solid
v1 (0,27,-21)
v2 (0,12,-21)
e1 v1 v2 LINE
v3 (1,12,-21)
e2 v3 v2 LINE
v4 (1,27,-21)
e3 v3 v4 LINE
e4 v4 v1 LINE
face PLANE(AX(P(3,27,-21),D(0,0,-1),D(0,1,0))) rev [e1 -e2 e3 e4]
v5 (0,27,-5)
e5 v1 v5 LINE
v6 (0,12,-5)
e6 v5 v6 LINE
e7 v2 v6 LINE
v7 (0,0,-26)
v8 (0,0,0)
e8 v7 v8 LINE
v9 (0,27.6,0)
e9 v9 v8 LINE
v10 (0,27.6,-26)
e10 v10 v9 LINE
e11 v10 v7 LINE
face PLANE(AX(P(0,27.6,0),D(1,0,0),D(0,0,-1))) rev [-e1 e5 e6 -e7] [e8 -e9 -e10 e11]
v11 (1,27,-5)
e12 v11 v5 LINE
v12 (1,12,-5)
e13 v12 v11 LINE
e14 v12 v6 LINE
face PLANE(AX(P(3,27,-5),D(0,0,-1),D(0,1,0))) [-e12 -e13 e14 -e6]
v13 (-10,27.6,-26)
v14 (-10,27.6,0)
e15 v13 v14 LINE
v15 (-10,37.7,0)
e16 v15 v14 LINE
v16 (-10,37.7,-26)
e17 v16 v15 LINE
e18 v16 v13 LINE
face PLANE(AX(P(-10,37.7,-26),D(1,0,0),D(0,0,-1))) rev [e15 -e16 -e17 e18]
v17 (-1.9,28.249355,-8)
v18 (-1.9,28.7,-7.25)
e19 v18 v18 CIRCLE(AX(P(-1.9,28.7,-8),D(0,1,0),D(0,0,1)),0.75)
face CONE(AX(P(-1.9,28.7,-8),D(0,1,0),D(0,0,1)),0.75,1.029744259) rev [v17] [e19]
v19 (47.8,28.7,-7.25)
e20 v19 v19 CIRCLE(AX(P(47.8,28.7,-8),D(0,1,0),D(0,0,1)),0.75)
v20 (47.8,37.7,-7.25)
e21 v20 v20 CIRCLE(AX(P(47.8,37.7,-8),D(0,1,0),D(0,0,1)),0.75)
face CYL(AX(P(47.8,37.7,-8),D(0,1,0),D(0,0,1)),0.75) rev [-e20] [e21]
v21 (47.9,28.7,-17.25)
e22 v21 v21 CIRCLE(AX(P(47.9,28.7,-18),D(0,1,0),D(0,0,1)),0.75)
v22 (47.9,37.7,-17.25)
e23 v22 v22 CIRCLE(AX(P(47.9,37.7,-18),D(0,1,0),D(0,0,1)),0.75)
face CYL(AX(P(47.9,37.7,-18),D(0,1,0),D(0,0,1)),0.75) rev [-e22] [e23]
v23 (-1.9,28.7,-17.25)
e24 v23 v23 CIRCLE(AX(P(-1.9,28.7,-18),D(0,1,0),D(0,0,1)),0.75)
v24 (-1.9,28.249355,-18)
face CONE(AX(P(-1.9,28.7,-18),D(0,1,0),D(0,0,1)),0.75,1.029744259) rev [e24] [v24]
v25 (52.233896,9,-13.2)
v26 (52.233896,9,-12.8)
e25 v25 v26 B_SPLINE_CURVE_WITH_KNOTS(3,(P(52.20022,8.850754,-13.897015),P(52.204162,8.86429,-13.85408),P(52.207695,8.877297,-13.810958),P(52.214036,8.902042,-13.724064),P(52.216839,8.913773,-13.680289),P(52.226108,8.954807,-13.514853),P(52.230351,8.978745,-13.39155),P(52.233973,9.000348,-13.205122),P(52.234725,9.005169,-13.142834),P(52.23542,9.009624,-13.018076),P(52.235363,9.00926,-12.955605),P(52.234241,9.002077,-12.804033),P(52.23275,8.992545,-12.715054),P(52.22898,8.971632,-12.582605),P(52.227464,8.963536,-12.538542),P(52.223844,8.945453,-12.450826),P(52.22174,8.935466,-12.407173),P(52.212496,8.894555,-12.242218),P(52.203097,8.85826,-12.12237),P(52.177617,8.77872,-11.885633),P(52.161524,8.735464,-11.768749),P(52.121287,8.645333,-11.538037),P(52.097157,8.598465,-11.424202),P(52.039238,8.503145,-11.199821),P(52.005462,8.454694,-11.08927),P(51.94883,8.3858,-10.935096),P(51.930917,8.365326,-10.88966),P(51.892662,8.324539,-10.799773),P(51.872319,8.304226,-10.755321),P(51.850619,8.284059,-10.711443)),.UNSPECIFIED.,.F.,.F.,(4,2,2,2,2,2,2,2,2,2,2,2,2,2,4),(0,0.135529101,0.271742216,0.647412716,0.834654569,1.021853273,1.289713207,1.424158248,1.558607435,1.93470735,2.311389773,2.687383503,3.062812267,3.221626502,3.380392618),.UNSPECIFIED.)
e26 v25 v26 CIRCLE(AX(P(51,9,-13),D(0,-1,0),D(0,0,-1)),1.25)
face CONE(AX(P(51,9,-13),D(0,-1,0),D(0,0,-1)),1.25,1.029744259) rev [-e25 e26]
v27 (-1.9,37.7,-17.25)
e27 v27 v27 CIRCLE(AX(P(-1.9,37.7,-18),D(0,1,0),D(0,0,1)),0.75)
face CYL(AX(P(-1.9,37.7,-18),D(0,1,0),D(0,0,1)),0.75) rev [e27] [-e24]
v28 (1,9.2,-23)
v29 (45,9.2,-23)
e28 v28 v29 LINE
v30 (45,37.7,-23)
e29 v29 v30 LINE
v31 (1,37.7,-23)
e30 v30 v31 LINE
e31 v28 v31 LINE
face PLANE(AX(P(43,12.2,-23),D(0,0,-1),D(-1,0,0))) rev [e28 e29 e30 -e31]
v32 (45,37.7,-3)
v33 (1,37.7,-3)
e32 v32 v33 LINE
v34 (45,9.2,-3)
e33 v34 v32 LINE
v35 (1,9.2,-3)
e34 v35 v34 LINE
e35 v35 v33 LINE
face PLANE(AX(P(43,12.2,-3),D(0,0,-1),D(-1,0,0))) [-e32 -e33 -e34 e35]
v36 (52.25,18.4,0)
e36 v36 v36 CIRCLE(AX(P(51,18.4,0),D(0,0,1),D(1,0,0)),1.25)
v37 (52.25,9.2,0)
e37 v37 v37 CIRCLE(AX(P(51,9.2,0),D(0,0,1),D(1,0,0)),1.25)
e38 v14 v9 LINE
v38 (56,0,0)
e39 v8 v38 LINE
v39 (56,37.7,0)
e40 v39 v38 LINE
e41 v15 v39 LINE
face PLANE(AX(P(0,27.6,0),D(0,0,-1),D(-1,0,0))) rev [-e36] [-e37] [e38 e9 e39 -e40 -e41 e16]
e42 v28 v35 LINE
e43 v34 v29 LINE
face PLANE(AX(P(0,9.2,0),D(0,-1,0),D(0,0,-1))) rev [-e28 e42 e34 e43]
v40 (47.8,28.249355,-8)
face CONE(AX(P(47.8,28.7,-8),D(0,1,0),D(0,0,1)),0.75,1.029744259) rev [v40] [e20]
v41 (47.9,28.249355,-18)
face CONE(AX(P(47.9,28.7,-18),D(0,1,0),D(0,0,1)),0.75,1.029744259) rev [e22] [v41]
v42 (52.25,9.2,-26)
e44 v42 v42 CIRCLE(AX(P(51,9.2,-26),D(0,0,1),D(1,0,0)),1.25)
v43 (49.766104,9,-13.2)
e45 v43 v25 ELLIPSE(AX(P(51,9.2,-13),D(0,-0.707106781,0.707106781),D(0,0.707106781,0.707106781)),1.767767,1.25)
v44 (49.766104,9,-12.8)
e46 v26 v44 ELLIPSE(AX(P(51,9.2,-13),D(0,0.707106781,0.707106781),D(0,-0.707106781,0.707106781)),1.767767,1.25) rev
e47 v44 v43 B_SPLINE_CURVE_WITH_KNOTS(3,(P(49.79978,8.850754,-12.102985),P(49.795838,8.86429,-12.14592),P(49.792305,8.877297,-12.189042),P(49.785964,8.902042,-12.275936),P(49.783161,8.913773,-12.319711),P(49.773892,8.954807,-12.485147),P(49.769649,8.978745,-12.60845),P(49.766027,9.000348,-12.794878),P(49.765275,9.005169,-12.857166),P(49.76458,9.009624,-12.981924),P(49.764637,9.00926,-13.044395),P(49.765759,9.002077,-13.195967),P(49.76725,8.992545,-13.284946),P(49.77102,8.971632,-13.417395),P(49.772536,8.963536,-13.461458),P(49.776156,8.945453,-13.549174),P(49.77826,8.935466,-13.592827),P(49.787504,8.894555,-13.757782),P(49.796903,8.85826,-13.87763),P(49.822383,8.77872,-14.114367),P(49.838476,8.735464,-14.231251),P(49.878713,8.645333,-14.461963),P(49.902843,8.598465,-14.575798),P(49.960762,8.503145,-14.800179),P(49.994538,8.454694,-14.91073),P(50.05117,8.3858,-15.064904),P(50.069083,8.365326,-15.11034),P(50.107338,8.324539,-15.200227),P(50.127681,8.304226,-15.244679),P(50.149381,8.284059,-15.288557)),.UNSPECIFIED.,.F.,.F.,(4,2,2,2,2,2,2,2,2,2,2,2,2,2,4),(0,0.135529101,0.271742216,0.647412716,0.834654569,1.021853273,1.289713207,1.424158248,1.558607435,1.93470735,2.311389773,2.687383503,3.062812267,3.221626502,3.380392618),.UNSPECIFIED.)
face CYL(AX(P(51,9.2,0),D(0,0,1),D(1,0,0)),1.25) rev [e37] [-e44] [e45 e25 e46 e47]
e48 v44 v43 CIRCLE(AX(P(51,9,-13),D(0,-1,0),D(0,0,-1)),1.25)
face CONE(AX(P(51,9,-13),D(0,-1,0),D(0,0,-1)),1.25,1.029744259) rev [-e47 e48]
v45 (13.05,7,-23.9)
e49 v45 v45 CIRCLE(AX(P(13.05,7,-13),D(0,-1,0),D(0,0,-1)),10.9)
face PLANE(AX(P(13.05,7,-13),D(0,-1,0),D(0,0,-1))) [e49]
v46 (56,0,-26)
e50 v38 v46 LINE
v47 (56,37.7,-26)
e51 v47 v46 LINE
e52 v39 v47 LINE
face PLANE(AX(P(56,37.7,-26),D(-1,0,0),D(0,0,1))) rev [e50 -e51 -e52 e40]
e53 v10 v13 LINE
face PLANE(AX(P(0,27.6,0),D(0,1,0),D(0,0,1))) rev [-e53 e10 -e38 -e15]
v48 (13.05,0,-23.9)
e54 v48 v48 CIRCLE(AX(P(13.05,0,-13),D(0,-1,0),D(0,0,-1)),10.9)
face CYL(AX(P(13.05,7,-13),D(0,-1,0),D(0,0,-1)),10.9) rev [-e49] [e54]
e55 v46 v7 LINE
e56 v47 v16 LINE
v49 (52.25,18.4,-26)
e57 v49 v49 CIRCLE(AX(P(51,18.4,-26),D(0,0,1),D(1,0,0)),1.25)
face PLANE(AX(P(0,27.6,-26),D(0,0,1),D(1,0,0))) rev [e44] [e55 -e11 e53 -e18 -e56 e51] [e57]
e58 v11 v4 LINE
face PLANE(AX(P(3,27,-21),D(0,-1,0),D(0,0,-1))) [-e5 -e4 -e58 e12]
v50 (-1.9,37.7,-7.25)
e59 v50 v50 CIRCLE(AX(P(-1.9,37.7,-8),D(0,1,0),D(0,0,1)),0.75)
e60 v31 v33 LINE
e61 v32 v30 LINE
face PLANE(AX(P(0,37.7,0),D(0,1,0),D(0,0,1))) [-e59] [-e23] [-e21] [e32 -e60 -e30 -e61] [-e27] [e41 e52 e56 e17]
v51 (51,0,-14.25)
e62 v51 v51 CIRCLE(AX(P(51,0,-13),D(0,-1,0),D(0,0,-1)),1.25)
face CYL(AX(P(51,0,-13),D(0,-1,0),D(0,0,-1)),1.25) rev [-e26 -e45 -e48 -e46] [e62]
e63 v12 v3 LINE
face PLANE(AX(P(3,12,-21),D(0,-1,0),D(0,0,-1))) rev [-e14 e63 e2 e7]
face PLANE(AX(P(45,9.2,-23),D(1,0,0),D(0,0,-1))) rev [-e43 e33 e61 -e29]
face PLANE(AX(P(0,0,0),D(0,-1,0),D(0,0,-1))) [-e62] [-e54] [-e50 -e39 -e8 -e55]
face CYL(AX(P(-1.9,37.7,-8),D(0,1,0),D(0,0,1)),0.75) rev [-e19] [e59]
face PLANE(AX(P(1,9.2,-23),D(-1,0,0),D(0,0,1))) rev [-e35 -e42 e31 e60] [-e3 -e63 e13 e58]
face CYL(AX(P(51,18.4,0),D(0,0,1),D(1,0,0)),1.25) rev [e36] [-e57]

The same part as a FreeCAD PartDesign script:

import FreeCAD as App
import Part
import Sketcher
Q = App.Units.Quantity

doc = App.newDocument("Part")
body = doc.addObject("PartDesign::Body", "Body")

# Sketch on XZ plane
sketch1 = body.newObject("Sketcher::SketchObject", "Sketch")
sketch1.AttachmentSupport = (doc.getObject("XZ_Plane"), [""])
sketch1.MapMode = "FlatFace"
sketch1.addGeometry([
    Part.LineSegment(App.Vector(0, -26, 0), App.Vector(0, 0, 0)),
    Part.LineSegment(App.Vector(0, 0, 0), App.Vector(46, 0, 0)),
    Part.LineSegment(App.Vector(46, 0, 0), App.Vector(46, -26, 0)),
    Part.LineSegment(App.Vector(46, -26, 0), App.Vector(0, -26, 0)),
], False)
sketch1.addConstraint([
    Sketcher.Constraint("Coincident", 0, 2, 1, 1),
    Sketcher.Constraint("Coincident", 1, 2, 2, 1),
    Sketcher.Constraint("Coincident", 2, 2, 3, 1),
    Sketcher.Constraint("Coincident", 3, 2, 0, 1),
    Sketcher.Constraint("Vertical", 0),
    Sketcher.Constraint("Horizontal", 1),
    Sketcher.Constraint("Vertical", 2),
    Sketcher.Constraint("Horizontal", 3),
    Sketcher.Constraint("Coincident", 0, 2, -1, 1),
    Sketcher.Constraint("DistanceX", 1, 1, 1, 2, Q("46 mm")),
    Sketcher.Constraint("DistanceY", 0, 1, 0, 2, Q("26 mm")),
])
pad1 = body.newObject("PartDesign::Pad", "Pad")
pad1.Profile = sketch1
pad1.Length = 27.6
pad1.Reversed = True

# Sketch on XZ plane
sketch2 = body.newObject("Sketcher::SketchObject", "Sketch001")
sketch2.AttachmentSupport = (doc.getObject("XZ_Plane"), [""])
sketch2.MapMode = "FlatFace"
sketch2.AttachmentOffset = App.Placement(App.Vector(0, 0, -27.6), App.Rotation())
sketch2.addGeometry([
    Part.LineSegment(App.Vector(-10, -26, 0), App.Vector(-10, 0, 0)),
    Part.LineSegment(App.Vector(-10, 0, 0), App.Vector(56, 0, 0)),
    Part.LineSegment(App.Vector(56, 0, 0), App.Vector(56, -26, 0)),
    Part.LineSegment(App.Vector(56, -26, 0), App.Vector(-10, -26, 0)),
], False)
sketch2.addConstraint([
    Sketcher.Constraint("Coincident", 0, 2, 1, 1),
    Sketcher.Constraint("Coincident", 1, 2, 2, 1),
    Sketcher.Constraint("Coincident", 2, 2, 3, 1),
    Sketcher.Constraint("Coincident", 3, 2, 0, 1),
    Sketcher.Constraint("Vertical", 0),
    Sketcher.Constraint("Horizontal", 1),
    Sketcher.Constraint("Vertical", 2),
    Sketcher.Constraint("Horizontal", 3),
    Sketcher.Constraint("PointOnObject", 0, 2, -1),
    Sketcher.Constraint("DistanceX", 1, 1, 1, 2, Q("66 mm")),
    Sketcher.Constraint("DistanceY", 0, 1, 0, 2, Q("26 mm")),
    Sketcher.Constraint("DistanceX", 0, 2, -1, 1, Q("10 mm")),
])
pad2 = body.newObject("PartDesign::Pad", "Pad001")
pad2.Profile = sketch2
pad2.Length = 10.1
pad2.Reversed = True

# Sketch on XZ plane
sketch3 = body.newObject("Sketcher::SketchObject", "Sketch002")
sketch3.AttachmentSupport = (doc.getObject("XZ_Plane"), [""])
sketch3.MapMode = "FlatFace"
sketch3.AttachmentOffset = App.Placement(App.Vector(0, 0, -37.7), App.Rotation())
sketch3.addGeometry([
    Part.LineSegment(App.Vector(3, -23, 0), App.Vector(3, -3, 0)),
    Part.LineSegment(App.Vector(3, -3, 0), App.Vector(43, -3, 0)),
    Part.LineSegment(App.Vector(43, -3, 0), App.Vector(43, -23, 0)),
    Part.LineSegment(App.Vector(43, -23, 0), App.Vector(3, -23, 0)),
], False)
sketch3.addConstraint([
    Sketcher.Constraint("Coincident", 0, 2, 1, 1),
    Sketcher.Constraint("Coincident", 1, 2, 2, 1),
    Sketcher.Constraint("Coincident", 2, 2, 3, 1),
    Sketcher.Constraint("Coincident", 3, 2, 0, 1),
    Sketcher.Constraint("Vertical", 0),
    Sketcher.Constraint("Horizontal", 1),
    Sketcher.Constraint("Vertical", 2),
    Sketcher.Constraint("Horizontal", 3),
    Sketcher.Constraint("DistanceX", 1, 1, 1, 2, Q("40 mm")),
    Sketcher.Constraint("DistanceY", 0, 1, 0, 2, Q("20 mm")),
    Sketcher.Constraint("DistanceX", -1, 1, 0, 2, Q("3 mm")),
    Sketcher.Constraint("DistanceY", 0, 2, -1, 1, Q("3 mm")),
])
pocket1 = body.newObject("PartDesign::Pocket", "Pocket")
pocket1.Profile = sketch3
pocket1.Length = 25.5
pocket1.Reversed = True

# Sketch on XZ plane
sketch4 = body.newObject("Sketcher::SketchObject", "Sketch003")
sketch4.AttachmentSupport = (doc.getObject("XZ_Plane"), [""])
sketch4.MapMode = "FlatFace"
sketch4.AttachmentOffset = App.Placement(App.Vector(0, 0, -37.7), App.Rotation())
sketch4.addGeometry([
    Part.Circle(App.Vector(-1.9, -18, 0), App.Vector(0, 0, 1), 0.75),
    Part.Circle(App.Vector(-1.9, -8, 0), App.Vector(0, 0, 1), 0.75),
    Part.Circle(App.Vector(47.8, -8, 0), App.Vector(0, 0, 1), 0.75),
    Part.Circle(App.Vector(47.9, -18, 0), App.Vector(0, 0, 1), 0.75),
], False)
sketch4.addConstraint([
    Sketcher.Constraint("Equal", 0, 1),
    Sketcher.Constraint("Equal", 1, 2),
    Sketcher.Constraint("Equal", 2, 3),
    Sketcher.Constraint("Horizontal", 1, 3, 2, 3),
    Sketcher.Constraint("Horizontal", 0, 3, 3, 3),
    Sketcher.Constraint("Vertical", 0, 3, 1, 3),
    Sketcher.Constraint("Diameter", 0, Q("1.5 mm")),
    Sketcher.Constraint("DistanceY", 0, 3, -1, 1, Q("18 mm")),
    Sketcher.Constraint("DistanceY", 1, 3, -1, 1, Q("8 mm")),
    Sketcher.Constraint("DistanceX", 0, 3, -1, 1, Q("1.9 mm")),
    Sketcher.Constraint("DistanceX", -1, 1, 2, 3, Q("47.8 mm")),
    Sketcher.Constraint("DistanceX", -1, 1, 3, 3, Q("47.9 mm")),
])
doc.recompute()
hole = body.newObject("PartDesign::Hole", "Hole")
hole.Profile = sketch4
hole.ThreadType = "None"
hole.Diameter = 1.5
hole.DepthType = "Dimension"
hole.Depth = 9
hole.DrillPoint = "Angled"
hole.DrillPointAngle = 118
hole.Reversed = True

# Sketch on XZ plane
sketch5 = body.newObject("Sketcher::SketchObject", "Sketch004")
sketch5.AttachmentSupport = (doc.getObject("XZ_Plane"), [""])
sketch5.MapMode = "FlatFace"
sketch5.AttachmentOffset = App.Placement(App.Vector(0, 0, -12.2), App.Rotation())
sketch5.addGeometry([
    Part.LineSegment(App.Vector(3, -23, 0), App.Vector(3, -3, 0)),
    Part.LineSegment(App.Vector(3, -3, 0), App.Vector(43, -3, 0)),
    Part.LineSegment(App.Vector(43, -3, 0), App.Vector(43, -23, 0)),
    Part.LineSegment(App.Vector(43, -23, 0), App.Vector(3, -23, 0)),
], False)
sketch5.addConstraint([
    Sketcher.Constraint("Coincident", 0, 2, 1, 1),
    Sketcher.Constraint("Coincident", 1, 2, 2, 1),
    Sketcher.Constraint("Coincident", 2, 2, 3, 1),
    Sketcher.Constraint("Coincident", 3, 2, 0, 1),
    Sketcher.Constraint("Vertical", 0),
    Sketcher.Constraint("Horizontal", 1),
    Sketcher.Constraint("Vertical", 2),
    Sketcher.Constraint("Horizontal", 3),
    Sketcher.Constraint("DistanceX", 1, 1, 1, 2, Q("40 mm")),
    Sketcher.Constraint("DistanceY", 0, 1, 0, 2, Q("20 mm")),
    Sketcher.Constraint("DistanceX", -1, 1, 0, 2, Q("3 mm")),
    Sketcher.Constraint("DistanceY", 0, 2, -1, 1, Q("3 mm")),
])
pocket2 = body.newObject("PartDesign::Pocket", "Pocket001")
pocket2.Profile = sketch5
pocket2.Length = 3
pocket2.Reversed = True

# Sketch on YZ plane
sketch6 = body.newObject("Sketcher::SketchObject", "Sketch005")
sketch6.AttachmentSupport = (doc.getObject("YZ_Plane"), [""])
sketch6.MapMode = "FlatFace"
sketch6.addGeometry([
    Part.LineSegment(App.Vector(27, -21, 0), App.Vector(12, -21, 0)),
    Part.LineSegment(App.Vector(12, -21, 0), App.Vector(12, -5, 0)),
    Part.LineSegment(App.Vector(12, -5, 0), App.Vector(27, -5, 0)),
    Part.LineSegment(App.Vector(27, -5, 0), App.Vector(27, -21, 0)),
], False)
sketch6.addConstraint([
    Sketcher.Constraint("Coincident", 0, 2, 1, 1),
    Sketcher.Constraint("Coincident", 1, 2, 2, 1),
    Sketcher.Constraint("Coincident", 2, 2, 3, 1),
    Sketcher.Constraint("Coincident", 3, 2, 0, 1),
    Sketcher.Constraint("Horizontal", 0),
    Sketcher.Constraint("Vertical", 1),
    Sketcher.Constraint("Horizontal", 2),
    Sketcher.Constraint("Vertical", 3),
    Sketcher.Constraint("DistanceX", 0, 2, 0, 1, Q("15 mm")),
    Sketcher.Constraint("DistanceY", 1, 1, 1, 2, Q("16 mm")),
    Sketcher.Constraint("DistanceX", -1, 1, 0, 2, Q("12 mm")),
    Sketcher.Constraint("DistanceY", 0, 2, -1, 1, Q("21 mm")),
])
pocket3 = body.newObject("PartDesign::Pocket", "Pocket002")
pocket3.Profile = sketch6
pocket3.Length = 3
pocket3.Reversed = True

# Sketch on XZ plane
sketch7 = body.newObject("Sketcher::SketchObject", "Sketch006")
sketch7.AttachmentSupport = (doc.getObject("XZ_Plane"), [""])
sketch7.MapMode = "FlatFace"
sketch7.addGeometry(Part.Circle(App.Vector(13.05, -13, 0), App.Vector(0, 0, 1), 10.9), False)
sketch7.addConstraint([
    Sketcher.Constraint("Diameter", 0, Q("21.8 mm")),
    Sketcher.Constraint("DistanceY", 0, 3, -1, 1, Q("13 mm")),
    Sketcher.Constraint("DistanceX", -1, 1, 0, 3, Q("13.05 mm")),
])
pocket4 = body.newObject("PartDesign::Pocket", "Pocket003")
pocket4.Profile = sketch7
pocket4.Length = 7

# Sketch on XZ plane
sketch8 = body.newObject("Sketcher::SketchObject", "Sketch007")
sketch8.AttachmentSupport = (doc.getObject("XZ_Plane"), [""])
sketch8.MapMode = "FlatFace"
sketch8.AttachmentOffset = App.Placement(App.Vector(0, 0, -37.7), App.Rotation())
sketch8.addGeometry([
    Part.LineSegment(App.Vector(1, -23, 0), App.Vector(1, -3, 0)),
    Part.LineSegment(App.Vector(1, -3, 0), App.Vector(45, -3, 0)),
    Part.LineSegment(App.Vector(45, -3, 0), App.Vector(45, -23, 0)),
    Part.LineSegment(App.Vector(45, -23, 0), App.Vector(1, -23, 0)),
], False)
sketch8.addConstraint([
    Sketcher.Constraint("Coincident", 0, 2, 1, 1),
    Sketcher.Constraint("Coincident", 1, 2, 2, 1),
    Sketcher.Constraint("Coincident", 2, 2, 3, 1),
    Sketcher.Constraint("Coincident", 3, 2, 0, 1),
    Sketcher.Constraint("Vertical", 0),
    Sketcher.Constraint("Horizontal", 1),
    Sketcher.Constraint("Vertical", 2),
    Sketcher.Constraint("Horizontal", 3),
    Sketcher.Constraint("DistanceX", 1, 1, 1, 2, Q("44 mm")),
    Sketcher.Constraint("DistanceY", 0, 1, 0, 2, Q("20 mm")),
    Sketcher.Constraint("DistanceX", -1, 1, 0, 2, Q("1 mm")),
    Sketcher.Constraint("DistanceY", 0, 2, -1, 1, Q("3 mm")),
])
pocket5 = body.newObject("PartDesign::Pocket", "Pocket004")
pocket5.Profile = sketch8
pocket5.Length = 28.5
pocket5.Reversed = True

# Sketch on YZ plane
sketch9 = body.newObject("Sketcher::SketchObject", "Sketch008")
sketch9.AttachmentSupport = (doc.getObject("YZ_Plane"), [""])
sketch9.MapMode = "FlatFace"
sketch9.AttachmentOffset = App.Placement(App.Vector(0, 0, 46), App.Rotation())
sketch9.addGeometry([
    Part.LineSegment(App.Vector(27.6, 0, 0), App.Vector(0, 0, 0)),
    Part.LineSegment(App.Vector(0, 0, 0), App.Vector(0, -26, 0)),
    Part.LineSegment(App.Vector(0, -26, 0), App.Vector(27.6, -26, 0)),
    Part.LineSegment(App.Vector(27.6, -26, 0), App.Vector(27.6, 0, 0)),
], False)
sketch9.addConstraint([
    Sketcher.Constraint("Coincident", 0, 2, 1, 1),
    Sketcher.Constraint("Coincident", 1, 2, 2, 1),
    Sketcher.Constraint("Coincident", 2, 2, 3, 1),
    Sketcher.Constraint("Coincident", 3, 2, 0, 1),
    Sketcher.Constraint("Horizontal", 0),
    Sketcher.Constraint("Vertical", 1),
    Sketcher.Constraint("Horizontal", 2),
    Sketcher.Constraint("Vertical", 3),
    Sketcher.Constraint("Coincident", 0, 2, -1, 1),
    Sketcher.Constraint("DistanceY", 1, 2, 1, 1, Q("26 mm")),
    Sketcher.Constraint("DistanceX", 0, 2, 0, 1, Q("27.6 mm")),
])
pad3 = body.newObject("PartDesign::Pad", "Pad002")
pad3.Profile = sketch9
pad3.Length = 10

# Sketch on XY plane
sketch10 = body.newObject("Sketcher::SketchObject", "Sketch009")
sketch10.AttachmentSupport = (doc.getObject("XY_Plane"), [""])
sketch10.MapMode = "FlatFace"
sketch10.addGeometry([
    Part.Circle(App.Vector(51, 18.4, 0), App.Vector(0, 0, 1), 1.25),
    Part.Circle(App.Vector(51, 9.2, 0), App.Vector(0, 0, 1), 1.25),
], False)
sketch10.addConstraint([
    Sketcher.Constraint("Equal", 0, 1),
    Sketcher.Constraint("Vertical", 0, 3, 1, 3),
    Sketcher.Constraint("Diameter", 0, Q("2.5 mm")),
    Sketcher.Constraint("DistanceX", -1, 1, 0, 3, Q("51 mm")),
    Sketcher.Constraint("DistanceY", -1, 1, 0, 3, Q("18.4 mm")),
    Sketcher.Constraint("DistanceY", -1, 1, 1, 3, Q("9.2 mm")),
])
doc.recompute()
hole2 = body.newObject("PartDesign::Hole", "Hole001")
hole2.Profile = sketch10
hole2.ThreadType = "None"
hole2.Diameter = 2.5
hole2.DepthType = "Dimension"
hole2.Depth = 26
hole2.DrillPoint = "Angled"
hole2.DrillPointAngle = 118

# Sketch on XZ plane
sketch11 = body.newObject("Sketcher::SketchObject", "Sketch010")
sketch11.AttachmentSupport = (doc.getObject("XZ_Plane"), [""])
sketch11.MapMode = "FlatFace"
sketch11.addGeometry(Part.Circle(App.Vector(51, -13, 0), App.Vector(0, 0, 1), 1.25), False)
sketch11.addConstraint([
    Sketcher.Constraint("Diameter", 0, Q("2.5 mm")),
    Sketcher.Constraint("DistanceX", -1, 1, 0, 3, Q("51 mm")),
    Sketcher.Constraint("DistanceY", 0, 3, -1, 1, Q("13 mm")),
])
doc.recompute()
hole3 = body.newObject("PartDesign::Hole", "Hole002")
hole3.Profile = sketch11
hole3.ThreadType = "None"
hole3.Diameter = 2.5
hole3.DepthType = "Dimension"
hole3.Depth = 9
hole3.DrillPoint = "Angled"
hole3.DrillPointAngle = 118

doc.recompute()
